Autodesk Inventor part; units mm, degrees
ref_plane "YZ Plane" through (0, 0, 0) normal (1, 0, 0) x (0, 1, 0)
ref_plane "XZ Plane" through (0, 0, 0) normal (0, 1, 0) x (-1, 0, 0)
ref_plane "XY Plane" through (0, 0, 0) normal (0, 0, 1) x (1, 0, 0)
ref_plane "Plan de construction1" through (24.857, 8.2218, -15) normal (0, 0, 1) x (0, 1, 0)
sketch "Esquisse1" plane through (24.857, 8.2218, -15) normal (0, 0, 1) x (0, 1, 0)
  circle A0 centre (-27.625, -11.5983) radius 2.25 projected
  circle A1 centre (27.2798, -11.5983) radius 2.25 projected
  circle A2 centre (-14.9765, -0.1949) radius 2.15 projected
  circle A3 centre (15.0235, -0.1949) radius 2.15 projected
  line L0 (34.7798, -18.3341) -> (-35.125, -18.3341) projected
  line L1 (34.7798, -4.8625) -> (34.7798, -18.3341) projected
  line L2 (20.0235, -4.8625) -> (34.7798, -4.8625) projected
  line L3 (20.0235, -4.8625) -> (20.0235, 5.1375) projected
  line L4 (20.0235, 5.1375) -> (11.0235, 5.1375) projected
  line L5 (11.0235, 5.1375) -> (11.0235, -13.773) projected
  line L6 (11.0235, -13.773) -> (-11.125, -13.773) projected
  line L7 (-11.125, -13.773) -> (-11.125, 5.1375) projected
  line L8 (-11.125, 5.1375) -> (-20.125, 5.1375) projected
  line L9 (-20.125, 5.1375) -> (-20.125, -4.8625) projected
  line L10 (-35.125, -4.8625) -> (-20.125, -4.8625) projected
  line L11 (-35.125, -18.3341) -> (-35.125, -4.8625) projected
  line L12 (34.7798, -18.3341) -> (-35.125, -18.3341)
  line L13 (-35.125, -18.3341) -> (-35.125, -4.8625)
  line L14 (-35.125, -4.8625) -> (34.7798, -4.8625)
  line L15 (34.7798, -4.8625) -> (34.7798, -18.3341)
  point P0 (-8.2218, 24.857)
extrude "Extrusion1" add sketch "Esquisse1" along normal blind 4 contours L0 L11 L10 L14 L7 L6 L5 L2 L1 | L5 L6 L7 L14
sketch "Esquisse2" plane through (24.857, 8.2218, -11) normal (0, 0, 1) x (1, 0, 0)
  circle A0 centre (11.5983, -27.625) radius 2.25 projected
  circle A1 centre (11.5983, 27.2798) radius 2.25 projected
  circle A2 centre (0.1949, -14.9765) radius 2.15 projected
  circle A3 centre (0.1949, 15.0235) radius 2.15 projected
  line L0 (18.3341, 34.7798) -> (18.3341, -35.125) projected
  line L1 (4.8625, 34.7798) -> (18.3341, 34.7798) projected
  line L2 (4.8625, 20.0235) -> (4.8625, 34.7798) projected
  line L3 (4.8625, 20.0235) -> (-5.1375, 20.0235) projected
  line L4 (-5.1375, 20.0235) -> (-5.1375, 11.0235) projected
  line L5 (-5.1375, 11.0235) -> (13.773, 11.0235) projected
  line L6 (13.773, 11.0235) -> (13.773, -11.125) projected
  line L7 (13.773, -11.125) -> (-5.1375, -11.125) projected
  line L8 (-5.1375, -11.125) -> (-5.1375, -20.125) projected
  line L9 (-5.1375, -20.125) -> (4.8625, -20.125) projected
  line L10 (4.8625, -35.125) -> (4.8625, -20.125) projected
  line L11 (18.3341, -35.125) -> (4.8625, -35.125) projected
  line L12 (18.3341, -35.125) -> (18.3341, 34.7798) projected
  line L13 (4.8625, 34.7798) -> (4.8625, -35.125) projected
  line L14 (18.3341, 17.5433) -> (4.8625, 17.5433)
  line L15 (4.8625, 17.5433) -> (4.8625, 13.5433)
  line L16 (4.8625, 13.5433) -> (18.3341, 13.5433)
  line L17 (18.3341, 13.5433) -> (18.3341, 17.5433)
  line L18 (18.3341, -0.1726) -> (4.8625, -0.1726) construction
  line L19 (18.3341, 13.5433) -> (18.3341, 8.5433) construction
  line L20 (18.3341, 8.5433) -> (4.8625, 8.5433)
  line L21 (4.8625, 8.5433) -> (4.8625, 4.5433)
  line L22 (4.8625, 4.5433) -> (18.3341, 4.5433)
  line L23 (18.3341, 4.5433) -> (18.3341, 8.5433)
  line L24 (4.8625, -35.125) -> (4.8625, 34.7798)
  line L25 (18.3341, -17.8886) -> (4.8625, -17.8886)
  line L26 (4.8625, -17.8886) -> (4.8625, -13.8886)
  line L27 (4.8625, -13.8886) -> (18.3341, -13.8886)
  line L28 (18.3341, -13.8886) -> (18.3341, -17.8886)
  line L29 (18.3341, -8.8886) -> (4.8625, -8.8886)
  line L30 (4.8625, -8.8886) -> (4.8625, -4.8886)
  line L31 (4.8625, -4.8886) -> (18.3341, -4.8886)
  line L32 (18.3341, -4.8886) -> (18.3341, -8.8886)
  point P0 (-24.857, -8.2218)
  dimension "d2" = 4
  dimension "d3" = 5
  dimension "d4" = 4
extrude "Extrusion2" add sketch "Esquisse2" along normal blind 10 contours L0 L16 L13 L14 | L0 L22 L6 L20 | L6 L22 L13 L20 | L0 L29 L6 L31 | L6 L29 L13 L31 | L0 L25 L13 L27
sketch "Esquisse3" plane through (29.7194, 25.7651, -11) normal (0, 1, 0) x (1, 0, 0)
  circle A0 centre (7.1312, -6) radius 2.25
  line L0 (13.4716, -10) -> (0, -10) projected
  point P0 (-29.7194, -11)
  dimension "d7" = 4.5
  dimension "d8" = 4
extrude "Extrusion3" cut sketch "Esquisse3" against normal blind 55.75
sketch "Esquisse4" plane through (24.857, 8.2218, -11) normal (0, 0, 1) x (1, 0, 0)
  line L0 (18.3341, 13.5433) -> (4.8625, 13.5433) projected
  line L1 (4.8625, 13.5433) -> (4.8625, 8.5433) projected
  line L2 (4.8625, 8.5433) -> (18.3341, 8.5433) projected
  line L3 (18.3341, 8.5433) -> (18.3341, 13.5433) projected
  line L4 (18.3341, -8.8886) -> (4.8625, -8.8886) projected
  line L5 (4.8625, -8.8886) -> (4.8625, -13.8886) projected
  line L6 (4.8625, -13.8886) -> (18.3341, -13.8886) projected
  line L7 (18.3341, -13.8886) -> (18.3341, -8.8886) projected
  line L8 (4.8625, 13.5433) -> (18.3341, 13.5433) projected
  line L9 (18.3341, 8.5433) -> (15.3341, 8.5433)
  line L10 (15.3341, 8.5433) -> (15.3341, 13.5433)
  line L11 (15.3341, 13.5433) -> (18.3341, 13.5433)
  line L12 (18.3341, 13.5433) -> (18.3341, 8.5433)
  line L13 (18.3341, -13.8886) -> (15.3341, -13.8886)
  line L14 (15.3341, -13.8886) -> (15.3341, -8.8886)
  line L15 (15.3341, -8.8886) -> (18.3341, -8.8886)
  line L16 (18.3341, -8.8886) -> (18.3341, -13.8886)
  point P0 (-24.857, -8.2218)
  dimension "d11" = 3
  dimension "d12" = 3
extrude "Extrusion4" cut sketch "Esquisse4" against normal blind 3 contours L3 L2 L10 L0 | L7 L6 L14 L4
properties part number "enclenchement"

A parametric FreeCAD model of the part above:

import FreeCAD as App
import Part
import Sketcher


def add_polygon(sketch, points):
    """Adds a closed chain of lines whose ends are joined by coincident constraints."""
    first, n = sketch.GeometryCount, len(points)
    for a, b in zip(points, points[1:] + points[:1]):
        sketch.addGeometry(Part.LineSegment(App.Vector(*a, 0), App.Vector(*b, 0)), False)
    for i in range(n):
        sketch.addConstraint(Sketcher.Constraint("Coincident", first + i, 2, first + (i + 1) % n, 1))

doc = App.newDocument("Part")
body = doc.addObject("PartDesign::Body", "Body")

# Sketch on XY plane
sketch1 = doc.addObject("Sketcher::SketchObject", "Sketch")
body.addObject(sketch1)
sketch1.AttachmentSupport = (doc.XY_Plane, [""])
sketch1.MapMode = "FlatFace"
sketch1.AttachmentOffset = App.Placement(App.Vector(0, 0, -15), App.Rotation())
add_polygon(sketch1, [(43.1911, -26.9032), (43.1911, 43.0016), (29.7195, 43.0016), (29.7195, -26.9032)])  # lines 0-3
sketch1.addGeometry(Part.Circle(App.Vector(36.4553, -19.4032, 0), App.Vector(0, 0, 1), 2.25), False)  # 4
sketch1.addGeometry(Part.Circle(App.Vector(36.4553, 35.5016, 0), App.Vector(0, 0, 1), 2.25), False)  # 5
sketch1.addConstraint([
    Sketcher.Constraint("Vertical", 0),
    Sketcher.Constraint("Horizontal", 1),
    Sketcher.Constraint("Vertical", 2),
    Sketcher.Constraint("Horizontal", 3),
    Sketcher.Constraint("Equal", 4, 5),
    Sketcher.Constraint("Vertical", 4, 3, 5, 3),
    Sketcher.Constraint("Diameter", 4, 4.5),
    Sketcher.Constraint("DistanceY", 5, 3, 0, 2, 7.5),
    Sketcher.Constraint("DistanceY", 2, 2, 4, 3, 7.5),
    Sketcher.Constraint("DistanceX", 1, 2, 1, 1, 13.4716),
    Sketcher.Constraint("DistanceY", 0, 1, 0, 2, 69.9048),
    Sketcher.Constraint("DistanceX", -1, 1, 0, 2, 43.191),
    Sketcher.Constraint("DistanceX", -1, 1, 4, 3, 36.4553),
    Sketcher.Constraint("DistanceY", 4, 3, -1, 1, 19.4032),
])
pad1 = doc.addObject("PartDesign::Pad", "Pad")
body.addObject(pad1)
pad1.Profile = sketch1
pad1.Length = 4

# Sketch on XY plane
sketch2 = doc.addObject("Sketcher::SketchObject", "Sketch001")
body.addObject(sketch2)
sketch2.AttachmentSupport = (doc.XY_Plane, [""])
sketch2.MapMode = "FlatFace"
sketch2.AttachmentOffset = App.Placement(App.Vector(0, 0, -11), App.Rotation())
add_polygon(sketch2, [(43.1911, 21.7651), (43.1911, 25.7651), (29.7195, 25.7651), (29.7195, 21.7651)])  # lines 0-3
add_polygon(sketch2, [(43.1911, 12.7651), (43.1911, 16.7651), (29.7195, 16.7651), (29.7195, 12.7651)])  # lines 4-7
add_polygon(sketch2, [(43.1911, -0.6668), (43.1911, 3.3332), (29.7195, 3.3332), (29.7195, -0.6668)])  # lines 8-11
add_polygon(sketch2, [(43.1911, -9.6668), (43.1911, -5.6668), (29.7195, -5.6668), (29.7195, -9.6668)])  # lines 12-15
sketch2.addConstraint([
    Sketcher.Constraint("Vertical", 0),
    Sketcher.Constraint("Horizontal", 1),
    Sketcher.Constraint("Vertical", 2),
    Sketcher.Constraint("Horizontal", 3),
    Sketcher.Constraint("Vertical", 4),
    Sketcher.Constraint("Horizontal", 5),
    Sketcher.Constraint("Vertical", 6),
    Sketcher.Constraint("Horizontal", 7),
    Sketcher.Constraint("Vertical", 8),
    Sketcher.Constraint("Horizontal", 9),
    Sketcher.Constraint("Vertical", 10),
    Sketcher.Constraint("Horizontal", 11),
    Sketcher.Constraint("Vertical", 12),
    Sketcher.Constraint("Horizontal", 13),
    Sketcher.Constraint("Vertical", 14),
    Sketcher.Constraint("Horizontal", 15),
    Sketcher.Constraint("Vertical", 3, 2, 4, 2),
    Sketcher.Constraint("Vertical", 2, 2, 5, 2),
    Sketcher.Constraint("Vertical", 7, 2, 8, 2),
    Sketcher.Constraint("Vertical", 6, 2, 9, 2),
    Sketcher.Constraint("Vertical", 11, 2, 12, 2),
    Sketcher.Constraint("Vertical", 10, 2, 13, 2),
    Sketcher.Constraint("Equal", 2, 4),
    Sketcher.Constraint("Equal", 6, 8),
    Sketcher.Constraint("Equal", 10, 12),
    Sketcher.Constraint("DistanceY", 0, 1, 0, 2, 4.0),
    Sketcher.Constraint("DistanceY", 4, 2, 3, 2, 5.0),
    Sketcher.Constraint("DistanceY", 12, 2, 11, 2, 5.0),
    Sketcher.Constraint("DistanceX", 1, 2, 1, 1, 13.4716),
    Sketcher.Constraint("DistanceX", -1, 1, 0, 2, 43.191),
    Sketcher.Constraint("DistanceY", -1, 1, 0, 2, 25.765),
    Sketcher.Constraint("DistanceY", 8, 2, 7, 2, 9.432),
])
pad2 = doc.addObject("PartDesign::Pad", "Pad001")
body.addObject(pad2)
pad2.Profile = sketch2
pad2.Length = 10

# Sketch on XZ plane
sketch3 = doc.addObject("Sketcher::SketchObject", "Sketch002")
body.addObject(sketch3)
sketch3.AttachmentSupport = (doc.XZ_Plane, [""])
sketch3.MapMode = "FlatFace"
sketch3.AttachmentOffset = App.Placement(App.Vector(0, 0, -25.7651), App.Rotation())
sketch3.addGeometry(Part.Circle(App.Vector(36.8506, -5, 0), App.Vector(0, 0, 1), 2.25), False)
sketch3.addConstraint([
    Sketcher.Constraint("Diameter", 0, 4.5),
    Sketcher.Constraint("DistanceY", 0, 3, -1, 1, 5.0),
    Sketcher.Constraint("DistanceX", -1, 1, 0, 3, 36.8506),
])
pocket1 = doc.addObject("PartDesign::Pocket", "Pocket")
body.addObject(pocket1)
pocket1.Profile = sketch3
pocket1.Length = 55.75
pocket1.Reversed = True

# Sketch on XY plane
sketch4 = doc.addObject("Sketcher::SketchObject", "Sketch003")
body.addObject(sketch4)
sketch4.AttachmentSupport = (doc.XY_Plane, [""])
sketch4.MapMode = "FlatFace"
sketch4.AttachmentOffset = App.Placement(App.Vector(0, 0, -11), App.Rotation())
add_polygon(sketch4, [(43.1911, 16.7651), (43.1911, 21.7651), (40.1911, 21.7651), (40.1911, 16.7651)])  # lines 0-3
add_polygon(sketch4, [(43.1911, -5.6668), (43.1911, -0.6668), (40.1911, -0.6668), (40.1911, -5.6668)])  # lines 4-7
sketch4.addConstraint([
    Sketcher.Constraint("Vertical", 0),
    Sketcher.Constraint("Horizontal", 1),
    Sketcher.Constraint("Vertical", 2),
    Sketcher.Constraint("Horizontal", 3),
    Sketcher.Constraint("Vertical", 4),
    Sketcher.Constraint("Horizontal", 5),
    Sketcher.Constraint("Vertical", 6),
    Sketcher.Constraint("Horizontal", 7),
    Sketcher.Constraint("Vertical", 3, 2, 4, 2),
    Sketcher.Constraint("Vertical", 2, 2, 5, 2),
    Sketcher.Constraint("Equal", 2, 4),
    Sketcher.Constraint("DistanceX", 1, 2, 1, 1, 3.0),
    Sketcher.Constraint("DistanceY", 0, 1, 0, 2, 5.0),
    Sketcher.Constraint("DistanceX", -1, 1, 0, 2, 43.191),
    Sketcher.Constraint("DistanceY", -1, 1, 0, 2, 21.765),
    Sketcher.Constraint("DistanceY", 4, 2, 3, 2, 17.432),
])
pocket2 = doc.addObject("PartDesign::Pocket", "Pocket001")
body.addObject(pocket2)
pocket2.Profile = sketch4
pocket2.Length = 3

doc.recompute()
